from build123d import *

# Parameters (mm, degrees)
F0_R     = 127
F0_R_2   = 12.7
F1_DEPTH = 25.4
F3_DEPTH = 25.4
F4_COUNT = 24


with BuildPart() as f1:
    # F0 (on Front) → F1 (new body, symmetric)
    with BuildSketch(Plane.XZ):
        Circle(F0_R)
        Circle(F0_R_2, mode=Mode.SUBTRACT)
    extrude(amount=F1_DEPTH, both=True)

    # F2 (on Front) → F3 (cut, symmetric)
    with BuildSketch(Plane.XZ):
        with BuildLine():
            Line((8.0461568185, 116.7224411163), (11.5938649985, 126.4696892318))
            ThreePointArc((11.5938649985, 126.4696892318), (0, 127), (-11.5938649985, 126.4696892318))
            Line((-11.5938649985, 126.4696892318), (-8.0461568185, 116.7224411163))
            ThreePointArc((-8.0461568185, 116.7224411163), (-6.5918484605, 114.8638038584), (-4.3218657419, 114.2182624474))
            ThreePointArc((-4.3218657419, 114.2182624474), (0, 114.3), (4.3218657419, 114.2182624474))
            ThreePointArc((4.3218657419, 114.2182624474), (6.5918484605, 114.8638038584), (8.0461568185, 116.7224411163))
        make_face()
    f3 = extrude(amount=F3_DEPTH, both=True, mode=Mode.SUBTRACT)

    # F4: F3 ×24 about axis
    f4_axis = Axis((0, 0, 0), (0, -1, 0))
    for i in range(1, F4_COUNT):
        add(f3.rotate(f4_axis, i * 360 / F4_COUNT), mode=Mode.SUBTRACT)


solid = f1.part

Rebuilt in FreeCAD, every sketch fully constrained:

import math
import FreeCAD as App
import Part
import Sketcher
Q = App.Units.Quantity

doc = App.newDocument("Part")
params = doc.addObject("Spreadsheet::Sheet", "Params")
for row, (alias, value) in enumerate([
    ("sketch1_diameter", "10 in"),
    ("sketch1_diameter2", "1 in"),
    ("pad1_length", "2 in"),
    ("sketch2_radius", "5 in"),
    ("sketch2_radius2", "4.5 in"),
    ("sketch2_radius3", "0.15 in"),
    ("pocket1_length", "2 in"),
], start=1):
    params.set(f"A{row}", alias)
    params.set(f"B{row}", "=" + value)
    params.setAlias(f"B{row}", alias)

body = doc.addObject("PartDesign::Body", "Body")

# Sketch on XZ plane
sketch1 = body.newObject("Sketcher::SketchObject", "Sketch")
sketch1.AttachmentSupport = (doc.getObject("XZ_Plane"), [""])
sketch1.MapMode = "FlatFace"
sketch1.addGeometry(Part.Circle(App.Vector(0, 0, 0), App.Vector(0, 0, 1), 127), False)
sketch1.addGeometry(Part.Circle(App.Vector(0, 0, 0), App.Vector(0, 0, 1), 12.7), False)
sketch1.addConstraint(Sketcher.Constraint("Coincident", 0, 3, -1, 1))
sketch1.addConstraint(Sketcher.Constraint("Coincident", 1, 3, -1, 1))
sketch1.addConstraint(Sketcher.Constraint("Diameter", 0, Q("10 in")))
sketch1.addConstraint(Sketcher.Constraint("Diameter", 1, Q("1 in")))
sketch1.setExpression("Constraints[2]", "Params.sketch1_diameter")
sketch1.setExpression("Constraints[3]", "Params.sketch1_diameter2")
pad1 = body.newObject("PartDesign::Pad", "Pad")
pad1.Profile = sketch1
pad1.setExpression("Length", "Params.pad1_length")
pad1.Midplane = True

# Sketch on XZ plane
sketch2 = body.newObject("Sketcher::SketchObject", "Sketch001")
sketch2.AttachmentSupport = (doc.getObject("XZ_Plane"), [""])
sketch2.MapMode = "FlatFace"
sketch2.addGeometry(Part.LineSegment(App.Vector(8.046157, 116.722441, 0), App.Vector(11.593865, 126.469689, 0)), False)
sketch2.addGeometry(Part.ArcOfCircle(Part.Circle(App.Vector(0, 0, 0), App.Vector(0, 0, 1), 127), math.radians(84.76216), math.radians(95.23784)), False)
sketch2.addGeometry(Part.LineSegment(App.Vector(-11.593865, 126.469689, 0), App.Vector(-8.046157, 116.722441, 0)), False)
sketch2.addGeometry(Part.ArcOfCircle(Part.Circle(App.Vector(-4.465928, 118.025538, 0), App.Vector(0, 0, 1), 3.81), math.radians(-160), math.radians(-87.833038)), False)
sketch2.addGeometry(Part.ArcOfCircle(Part.Circle(App.Vector(0, 0, 0), App.Vector(0, 0, 1), 114.3), math.radians(87.833038), math.radians(92.166962)), False)
sketch2.addGeometry(Part.ArcOfCircle(Part.Circle(App.Vector(4.465928, 118.025538, 0), App.Vector(0, 0, 1), 3.81), math.radians(-92.166962), math.radians(-20)), False)
sketch2.addConstraint(Sketcher.Constraint("Coincident", 0, 2, 1, 1))
sketch2.addConstraint(Sketcher.Constraint("Coincident", 1, 2, 2, 1))
sketch2.addConstraint(Sketcher.Constraint("Tangent", 2, 2, 3, 1))
sketch2.addConstraint(Sketcher.Constraint("Tangent", 3, 2, 4, 2))
sketch2.addConstraint(Sketcher.Constraint("Tangent", 4, 1, 5, 1))
sketch2.addConstraint(Sketcher.Constraint("Tangent", 5, 2, 0, 1))
sketch2.addConstraint(Sketcher.Constraint("Coincident", 1, 3, -1, 1))
sketch2.addConstraint(Sketcher.Constraint("Coincident", 4, 3, -1, 1))
sketch2.addConstraint(Sketcher.Constraint("Equal", 3, 5))
sketch2.addConstraint(Sketcher.Constraint("Symmetric", 2, 2, 5, 2, -2))
sketch2.addConstraint(Sketcher.Constraint("Radius", 1, Q("5 in")))
sketch2.addConstraint(Sketcher.Constraint("Radius", 4, Q("4.5 in")))
sketch2.addConstraint(Sketcher.Constraint("Radius", 3, Q("0.15 in")))
sketch2.addConstraint(Sketcher.Constraint("Angle", 0, Q("70 deg")))
sketch2.addConstraint(Sketcher.Constraint("DistanceY", -1, 1, 0, 2, 126.469689))
sketch2.setExpression("Constraints[10]", "Params.sketch2_radius")
sketch2.setExpression("Constraints[11]", "Params.sketch2_radius2")
sketch2.setExpression("Constraints[12]", "Params.sketch2_radius3")
pocket1 = body.newObject("PartDesign::Pocket", "Pocket")
pocket1.Profile = sketch2
pocket1.setExpression("Length", "Params.pocket1_length")
pocket1.Midplane = True
doc.recompute()

polarpattern = body.newObject("PartDesign::PolarPattern", "PolarPattern")
polarpattern.Originals = [pocket1]
polarpattern.Axis = (doc.getObject("Y_Axis"), [""])
polarpattern.Angle = 360
polarpattern.Occurrences = 24
body.Tip = polarpattern

doc.recompute()
